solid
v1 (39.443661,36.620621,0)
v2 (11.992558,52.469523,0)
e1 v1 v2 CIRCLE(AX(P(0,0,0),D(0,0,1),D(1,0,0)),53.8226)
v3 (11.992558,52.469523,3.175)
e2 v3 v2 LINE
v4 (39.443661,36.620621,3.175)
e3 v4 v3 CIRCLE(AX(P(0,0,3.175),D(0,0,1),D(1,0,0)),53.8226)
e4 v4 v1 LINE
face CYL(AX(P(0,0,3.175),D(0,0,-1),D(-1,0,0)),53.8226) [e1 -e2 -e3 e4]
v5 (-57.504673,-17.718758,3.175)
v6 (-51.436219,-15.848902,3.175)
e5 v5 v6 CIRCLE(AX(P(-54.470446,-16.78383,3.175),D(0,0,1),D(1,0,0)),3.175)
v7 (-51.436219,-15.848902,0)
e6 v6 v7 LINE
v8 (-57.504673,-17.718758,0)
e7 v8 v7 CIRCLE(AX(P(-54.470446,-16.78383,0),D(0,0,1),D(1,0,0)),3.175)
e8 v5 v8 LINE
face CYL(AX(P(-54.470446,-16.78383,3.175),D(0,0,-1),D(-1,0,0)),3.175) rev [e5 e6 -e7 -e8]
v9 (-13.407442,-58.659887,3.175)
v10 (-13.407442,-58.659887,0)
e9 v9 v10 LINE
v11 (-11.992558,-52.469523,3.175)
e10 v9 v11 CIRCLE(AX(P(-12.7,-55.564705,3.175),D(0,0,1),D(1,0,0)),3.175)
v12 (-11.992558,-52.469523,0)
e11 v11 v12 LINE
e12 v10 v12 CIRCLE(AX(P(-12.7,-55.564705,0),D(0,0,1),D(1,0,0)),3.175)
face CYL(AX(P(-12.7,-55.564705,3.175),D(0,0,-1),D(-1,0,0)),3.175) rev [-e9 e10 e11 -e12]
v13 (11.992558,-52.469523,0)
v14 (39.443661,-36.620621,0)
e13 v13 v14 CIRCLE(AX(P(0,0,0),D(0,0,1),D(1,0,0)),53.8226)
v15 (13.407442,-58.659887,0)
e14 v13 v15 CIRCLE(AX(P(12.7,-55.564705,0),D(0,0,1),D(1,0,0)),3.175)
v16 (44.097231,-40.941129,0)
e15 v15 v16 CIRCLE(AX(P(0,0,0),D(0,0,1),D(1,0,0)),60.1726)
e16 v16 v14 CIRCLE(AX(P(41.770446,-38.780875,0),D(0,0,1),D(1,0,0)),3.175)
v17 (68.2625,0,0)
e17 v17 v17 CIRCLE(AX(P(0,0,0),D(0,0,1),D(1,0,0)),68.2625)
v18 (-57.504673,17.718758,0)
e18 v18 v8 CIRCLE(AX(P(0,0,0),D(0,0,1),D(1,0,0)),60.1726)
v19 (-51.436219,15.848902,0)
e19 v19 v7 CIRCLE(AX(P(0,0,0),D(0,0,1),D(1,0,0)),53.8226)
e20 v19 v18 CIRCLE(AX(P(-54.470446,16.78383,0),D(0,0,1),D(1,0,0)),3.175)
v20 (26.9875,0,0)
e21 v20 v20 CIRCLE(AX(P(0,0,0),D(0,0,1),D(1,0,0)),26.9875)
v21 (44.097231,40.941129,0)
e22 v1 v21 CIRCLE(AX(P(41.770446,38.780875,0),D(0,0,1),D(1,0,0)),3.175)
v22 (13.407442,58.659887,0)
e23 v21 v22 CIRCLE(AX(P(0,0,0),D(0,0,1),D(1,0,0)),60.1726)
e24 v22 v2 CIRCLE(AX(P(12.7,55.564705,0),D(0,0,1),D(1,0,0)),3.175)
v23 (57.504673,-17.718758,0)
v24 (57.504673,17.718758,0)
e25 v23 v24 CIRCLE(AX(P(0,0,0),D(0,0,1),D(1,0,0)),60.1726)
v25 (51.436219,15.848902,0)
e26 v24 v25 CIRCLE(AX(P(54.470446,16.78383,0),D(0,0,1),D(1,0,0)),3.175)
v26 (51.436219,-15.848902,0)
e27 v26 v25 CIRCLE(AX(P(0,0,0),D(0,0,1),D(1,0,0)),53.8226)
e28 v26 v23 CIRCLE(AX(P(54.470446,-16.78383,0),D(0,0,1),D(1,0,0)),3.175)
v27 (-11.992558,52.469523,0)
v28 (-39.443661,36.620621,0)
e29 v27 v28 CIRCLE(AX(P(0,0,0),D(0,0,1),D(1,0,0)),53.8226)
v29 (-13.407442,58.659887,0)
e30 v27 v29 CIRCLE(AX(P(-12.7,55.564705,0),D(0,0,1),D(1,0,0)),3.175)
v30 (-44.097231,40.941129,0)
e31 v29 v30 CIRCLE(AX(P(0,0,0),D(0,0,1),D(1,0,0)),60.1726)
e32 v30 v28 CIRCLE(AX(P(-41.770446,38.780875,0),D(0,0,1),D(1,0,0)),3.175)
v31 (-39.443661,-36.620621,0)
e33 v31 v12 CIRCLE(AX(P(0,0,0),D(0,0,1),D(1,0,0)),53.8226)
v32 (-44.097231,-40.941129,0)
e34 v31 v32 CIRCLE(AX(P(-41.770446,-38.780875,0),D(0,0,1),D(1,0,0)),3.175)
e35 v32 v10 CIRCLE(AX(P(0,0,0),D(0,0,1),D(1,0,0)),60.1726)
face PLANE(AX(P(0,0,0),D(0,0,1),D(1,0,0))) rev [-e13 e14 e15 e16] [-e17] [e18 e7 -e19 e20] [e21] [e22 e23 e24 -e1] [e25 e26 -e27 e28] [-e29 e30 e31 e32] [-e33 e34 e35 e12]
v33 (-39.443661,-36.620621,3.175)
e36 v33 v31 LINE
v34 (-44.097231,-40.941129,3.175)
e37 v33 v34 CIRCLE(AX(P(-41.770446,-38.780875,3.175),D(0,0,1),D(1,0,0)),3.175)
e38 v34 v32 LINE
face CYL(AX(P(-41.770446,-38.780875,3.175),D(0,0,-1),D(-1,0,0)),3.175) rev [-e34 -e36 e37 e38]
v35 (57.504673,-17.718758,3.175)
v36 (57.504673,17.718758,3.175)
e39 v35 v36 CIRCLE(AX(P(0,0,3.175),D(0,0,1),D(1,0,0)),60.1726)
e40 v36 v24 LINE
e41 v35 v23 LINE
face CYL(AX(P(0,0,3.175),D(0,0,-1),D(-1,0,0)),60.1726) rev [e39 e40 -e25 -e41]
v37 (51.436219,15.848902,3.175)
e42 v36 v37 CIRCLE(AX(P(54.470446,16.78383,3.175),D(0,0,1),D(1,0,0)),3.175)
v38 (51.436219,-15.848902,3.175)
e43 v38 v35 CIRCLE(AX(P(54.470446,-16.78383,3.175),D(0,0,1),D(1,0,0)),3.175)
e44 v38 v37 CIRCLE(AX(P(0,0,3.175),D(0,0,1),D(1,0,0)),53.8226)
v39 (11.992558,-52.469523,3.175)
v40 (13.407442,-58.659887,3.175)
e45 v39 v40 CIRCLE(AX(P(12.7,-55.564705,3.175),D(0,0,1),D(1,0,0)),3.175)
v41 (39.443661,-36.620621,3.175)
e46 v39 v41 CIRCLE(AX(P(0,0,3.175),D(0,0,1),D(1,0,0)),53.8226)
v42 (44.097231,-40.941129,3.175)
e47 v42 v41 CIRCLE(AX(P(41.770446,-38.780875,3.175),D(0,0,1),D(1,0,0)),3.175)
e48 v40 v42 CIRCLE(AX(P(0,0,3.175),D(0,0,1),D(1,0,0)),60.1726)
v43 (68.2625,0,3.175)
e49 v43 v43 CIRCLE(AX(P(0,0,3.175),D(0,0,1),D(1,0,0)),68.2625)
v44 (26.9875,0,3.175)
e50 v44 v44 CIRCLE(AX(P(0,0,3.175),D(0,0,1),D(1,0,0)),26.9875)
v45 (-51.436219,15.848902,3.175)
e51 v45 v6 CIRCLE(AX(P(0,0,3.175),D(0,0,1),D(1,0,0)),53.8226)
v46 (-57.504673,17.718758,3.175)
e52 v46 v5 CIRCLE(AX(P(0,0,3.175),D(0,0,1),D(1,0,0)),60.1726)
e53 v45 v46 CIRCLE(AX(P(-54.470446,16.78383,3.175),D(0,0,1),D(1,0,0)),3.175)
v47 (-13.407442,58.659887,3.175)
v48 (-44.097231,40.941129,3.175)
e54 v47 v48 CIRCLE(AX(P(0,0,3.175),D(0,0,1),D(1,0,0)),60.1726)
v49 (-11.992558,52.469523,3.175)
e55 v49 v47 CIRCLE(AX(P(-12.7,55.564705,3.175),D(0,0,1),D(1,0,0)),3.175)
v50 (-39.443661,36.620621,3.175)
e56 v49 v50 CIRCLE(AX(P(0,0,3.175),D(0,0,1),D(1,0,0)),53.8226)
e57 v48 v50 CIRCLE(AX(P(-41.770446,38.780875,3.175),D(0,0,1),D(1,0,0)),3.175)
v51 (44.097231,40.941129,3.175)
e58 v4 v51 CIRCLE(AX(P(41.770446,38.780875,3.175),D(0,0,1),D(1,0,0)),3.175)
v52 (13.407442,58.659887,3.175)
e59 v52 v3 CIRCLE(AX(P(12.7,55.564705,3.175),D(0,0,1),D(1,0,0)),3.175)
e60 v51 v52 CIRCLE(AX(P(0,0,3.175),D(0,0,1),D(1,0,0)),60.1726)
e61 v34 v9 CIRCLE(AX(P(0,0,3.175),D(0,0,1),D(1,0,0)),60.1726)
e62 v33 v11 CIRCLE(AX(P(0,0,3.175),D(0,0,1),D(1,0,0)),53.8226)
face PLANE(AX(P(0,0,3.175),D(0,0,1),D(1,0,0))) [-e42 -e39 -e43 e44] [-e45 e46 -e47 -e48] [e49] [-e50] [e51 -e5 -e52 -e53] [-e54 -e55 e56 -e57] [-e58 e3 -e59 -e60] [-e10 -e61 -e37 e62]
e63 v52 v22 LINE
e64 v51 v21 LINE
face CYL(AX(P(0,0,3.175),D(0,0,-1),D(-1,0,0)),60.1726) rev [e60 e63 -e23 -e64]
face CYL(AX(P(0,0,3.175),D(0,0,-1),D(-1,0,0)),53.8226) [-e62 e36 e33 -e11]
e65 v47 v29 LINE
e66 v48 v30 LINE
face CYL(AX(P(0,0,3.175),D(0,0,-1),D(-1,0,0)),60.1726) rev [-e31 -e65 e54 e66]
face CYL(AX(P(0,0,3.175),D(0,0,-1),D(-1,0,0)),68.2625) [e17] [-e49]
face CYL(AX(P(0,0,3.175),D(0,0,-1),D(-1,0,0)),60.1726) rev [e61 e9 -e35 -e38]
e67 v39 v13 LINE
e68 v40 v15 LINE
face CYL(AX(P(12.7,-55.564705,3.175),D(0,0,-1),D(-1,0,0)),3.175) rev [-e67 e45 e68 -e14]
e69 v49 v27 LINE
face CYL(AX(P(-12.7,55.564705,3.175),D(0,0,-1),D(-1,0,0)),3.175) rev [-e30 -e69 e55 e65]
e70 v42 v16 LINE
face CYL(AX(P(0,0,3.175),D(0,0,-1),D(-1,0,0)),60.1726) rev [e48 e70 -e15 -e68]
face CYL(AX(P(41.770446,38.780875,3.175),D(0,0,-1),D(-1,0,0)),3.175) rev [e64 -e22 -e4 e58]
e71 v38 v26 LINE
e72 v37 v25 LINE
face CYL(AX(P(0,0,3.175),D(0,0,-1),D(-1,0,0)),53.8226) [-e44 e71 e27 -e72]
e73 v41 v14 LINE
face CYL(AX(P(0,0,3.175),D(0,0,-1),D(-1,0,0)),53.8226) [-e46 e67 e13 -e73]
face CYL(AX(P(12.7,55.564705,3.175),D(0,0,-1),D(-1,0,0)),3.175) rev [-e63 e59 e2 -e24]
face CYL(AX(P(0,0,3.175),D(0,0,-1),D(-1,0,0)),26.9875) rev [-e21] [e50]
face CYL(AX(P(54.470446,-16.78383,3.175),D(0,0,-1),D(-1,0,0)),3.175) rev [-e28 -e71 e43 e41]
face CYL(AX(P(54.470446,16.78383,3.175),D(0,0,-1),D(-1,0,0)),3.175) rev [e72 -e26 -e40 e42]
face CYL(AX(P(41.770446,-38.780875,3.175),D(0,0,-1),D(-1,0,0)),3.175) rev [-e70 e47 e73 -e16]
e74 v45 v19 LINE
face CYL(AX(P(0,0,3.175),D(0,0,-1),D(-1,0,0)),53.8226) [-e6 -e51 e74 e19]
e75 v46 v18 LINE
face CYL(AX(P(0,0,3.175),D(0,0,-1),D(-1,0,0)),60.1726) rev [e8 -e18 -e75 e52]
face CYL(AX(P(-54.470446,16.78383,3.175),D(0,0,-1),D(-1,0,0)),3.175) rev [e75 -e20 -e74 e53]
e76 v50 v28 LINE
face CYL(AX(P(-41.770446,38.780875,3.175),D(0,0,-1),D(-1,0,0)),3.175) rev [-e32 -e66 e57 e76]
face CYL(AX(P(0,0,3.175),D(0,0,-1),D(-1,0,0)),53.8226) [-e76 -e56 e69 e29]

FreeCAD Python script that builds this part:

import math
import FreeCAD as App
import Part
import Sketcher
Q = App.Units.Quantity

doc = App.newDocument("Part")
body = doc.addObject("PartDesign::Body", "Body")

sketch1 = doc.addObject("Sketcher::SketchObject", "Sketch")
body.addObject(sketch1)
sketch1.AttachmentSupport = (doc.XY_Plane, [""])
sketch1.MapMode = "FlatFace"
sketch1.addGeometry([
    Part.Circle(App.Vector(0, 0, 0), App.Vector(0, 0, 1), 68.3),
    Part.ArcOfCircle(Part.Circle(App.Vector(-41.8, -38.8, 0), App.Vector(0, 0, 1), 3.2), math.radians(43), math.radians(223)),
    Part.ArcOfCircle(Part.Circle(App.Vector(0, 0, 0), App.Vector(0, 0, 1), 53.8), math.radians(-137), math.radians(-103)),
    Part.ArcOfCircle(Part.Circle(App.Vector(-12.7, -55.6, 0), App.Vector(0, 0, 1), 3.2), math.radians(-103), math.radians(77)),
    Part.ArcOfCircle(Part.Circle(App.Vector(0, 0, 0), App.Vector(0, 0, 1), 60.2), math.radians(-137), math.radians(-103)),
    Part.ArcOfCircle(Part.Circle(App.Vector(12.7, -55.6, 0), App.Vector(0, 0, 1), 3.2), math.radians(103), math.radians(283)),
    Part.ArcOfCircle(Part.Circle(App.Vector(0, 0, 0), App.Vector(0, 0, 1), 53.8), math.radians(-77), math.radians(-43)),
    Part.ArcOfCircle(Part.Circle(App.Vector(41.8, -38.8, 0), App.Vector(0, 0, 1), 3.2), math.radians(-43), math.radians(137)),
    Part.ArcOfCircle(Part.Circle(App.Vector(0, 0, 0), App.Vector(0, 0, 1), 60.2), math.radians(-77), math.radians(-43)),
    Part.ArcOfCircle(Part.Circle(App.Vector(-54.5, 16.8, 0), App.Vector(0, 0, 1), 3.2), math.radians(-17), math.radians(163)),
    Part.ArcOfCircle(Part.Circle(App.Vector(0, 0, 0), App.Vector(0, 0, 1), 53.8), math.radians(163), math.radians(197)),
    Part.ArcOfCircle(Part.Circle(App.Vector(-54.5, -16.8, 0), App.Vector(0, 0, 1), 3.2), math.radians(-163), math.radians(17)),
    Part.ArcOfCircle(Part.Circle(App.Vector(0, 0, 0), App.Vector(0, 0, 1), 60.2), math.radians(163), math.radians(197)),
    Part.ArcOfCircle(Part.Circle(App.Vector(0, 0, 0), App.Vector(0, 0, 1), 60.2), math.radians(103), math.radians(137)),
    Part.ArcOfCircle(Part.Circle(App.Vector(-12.7, 55.6, 0), App.Vector(0, 0, 1), 3.2), math.radians(-77), math.radians(103)),
    Part.ArcOfCircle(Part.Circle(App.Vector(0, 0, 0), App.Vector(0, 0, 1), 53.8), math.radians(103), math.radians(137)),
    Part.ArcOfCircle(Part.Circle(App.Vector(-41.8, 38.8, 0), App.Vector(0, 0, 1), 3.2), math.radians(137), math.radians(317)),
    Part.Circle(App.Vector(0, 0, 0), App.Vector(0, 0, 1), 27),
    Part.ArcOfCircle(Part.Circle(App.Vector(54.5, -16.8, 0), App.Vector(0, 0, 1), 3.2), math.radians(163), math.radians(343)),
    Part.ArcOfCircle(Part.Circle(App.Vector(0, 0, 0), App.Vector(0, 0, 1), 53.8), math.radians(-17), math.radians(17)),
    Part.ArcOfCircle(Part.Circle(App.Vector(54.5, 16.8, 0), App.Vector(0, 0, 1), 3.2), math.radians(17), math.radians(197)),
    Part.ArcOfCircle(Part.Circle(App.Vector(0, 0, 0), App.Vector(0, 0, 1), 60.2), math.radians(-17), math.radians(17)),
    Part.ArcOfCircle(Part.Circle(App.Vector(41.8, 38.8, 0), App.Vector(0, 0, 1), 3.2), math.radians(-137), math.radians(43)),
    Part.ArcOfCircle(Part.Circle(App.Vector(0, 0, 0), App.Vector(0, 0, 1), 53.8), math.radians(43), math.radians(77)),
    Part.ArcOfCircle(Part.Circle(App.Vector(12.7, 55.6, 0), App.Vector(0, 0, 1), 3.2), math.radians(77), math.radians(257)),
    Part.ArcOfCircle(Part.Circle(App.Vector(0, 0, 0), App.Vector(0, 0, 1), 60.2), math.radians(43), math.radians(77)),
], False)
sketch1.addConstraint([
    Sketcher.Constraint("Tangent", 1, 1, 2, 1),
    Sketcher.Constraint("Tangent", 2, 2, 3, 2),
    Sketcher.Constraint("Tangent", 3, 1, 4, 2),
    Sketcher.Constraint("Tangent", 4, 1, 1, 2),
    Sketcher.Constraint("Tangent", 5, 1, 6, 1),
    Sketcher.Constraint("Tangent", 6, 2, 7, 2),
    Sketcher.Constraint("Tangent", 7, 1, 8, 2),
    Sketcher.Constraint("Tangent", 8, 1, 5, 2),
    Sketcher.Constraint("Tangent", 9, 1, 10, 1),
    Sketcher.Constraint("Tangent", 10, 2, 11, 2),
    Sketcher.Constraint("Tangent", 11, 1, 12, 2),
    Sketcher.Constraint("Tangent", 12, 1, 9, 2),
    Sketcher.Constraint("Tangent", 13, 1, 14, 2),
    Sketcher.Constraint("Tangent", 14, 1, 15, 1),
    Sketcher.Constraint("Tangent", 15, 2, 16, 2),
    Sketcher.Constraint("Tangent", 16, 1, 13, 2),
    Sketcher.Constraint("Tangent", 18, 1, 19, 1),
    Sketcher.Constraint("Tangent", 19, 2, 20, 2),
    Sketcher.Constraint("Tangent", 20, 1, 21, 2),
    Sketcher.Constraint("Tangent", 21, 1, 18, 2),
    Sketcher.Constraint("Tangent", 22, 1, 23, 1),
    Sketcher.Constraint("Tangent", 23, 2, 24, 2),
    Sketcher.Constraint("Tangent", 24, 1, 25, 2),
    Sketcher.Constraint("Tangent", 25, 1, 22, 2),
    Sketcher.Constraint("Coincident", 0, 3, -1, 1),
    Sketcher.Constraint("Coincident", 2, 3, -1, 1),
    Sketcher.Constraint("Coincident", 4, 3, -1, 1),
    Sketcher.Constraint("Coincident", 6, 3, -1, 1),
    Sketcher.Constraint("Coincident", 8, 3, -1, 1),
    Sketcher.Constraint("Coincident", 10, 3, -1, 1),
    Sketcher.Constraint("Coincident", 12, 3, -1, 1),
    Sketcher.Constraint("Coincident", 13, 3, -1, 1),
    Sketcher.Constraint("Coincident", 15, 3, -1, 1),
    Sketcher.Constraint("Coincident", 17, 3, -1, 1),
    Sketcher.Constraint("Coincident", 19, 3, -1, 1),
    Sketcher.Constraint("Coincident", 21, 3, -1, 1),
    Sketcher.Constraint("Coincident", 23, 3, -1, 1),
    Sketcher.Constraint("Coincident", 25, 3, -1, 1),
    Sketcher.Constraint("Equal", 3, 5),
    Sketcher.Constraint("Equal", 2, 6),
    Sketcher.Constraint("Equal", 7, 9),
    Sketcher.Constraint("Equal", 6, 10),
    Sketcher.Constraint("Equal", 12, 13),
    Sketcher.Constraint("Equal", 11, 14),
    Sketcher.Constraint("Equal", 16, 18),
    Sketcher.Constraint("Equal", 15, 19),
    Sketcher.Constraint("Equal", 20, 22),
    Sketcher.Constraint("Equal", 19, 23),
    Sketcher.Constraint("Horizontal", 3, 3, 5, 3),
    Sketcher.Constraint("Horizontal", 1, 3, 7, 3),
    Sketcher.Constraint("Horizontal", 11, 3, 18, 3),
    Sketcher.Constraint("Horizontal", 9, 3, 20, 3),
    Sketcher.Constraint("Horizontal", 16, 3, 22, 3),
    Sketcher.Constraint("Horizontal", 14, 3, 24, 3),
    Sketcher.Constraint("Vertical", 9, 3, 11, 3),
    Sketcher.Constraint("Vertical", 3, 3, 14, 3),
    Sketcher.Constraint("Vertical", 1, 3, 16, 3),
    Sketcher.Constraint("Diameter", 0, Q("5.375 in")),
    Sketcher.Constraint("Diameter", 17, Q("2.125 in")),
    Sketcher.Constraint("Radius", 1, Q("0.125 in")),
    Sketcher.Constraint("Radius", 2, Q("2.119 in")),
    Sketcher.Constraint("DistanceX", 3, 3, 5, 3, Q("1 in")),
    Sketcher.Constraint("DistanceX", 9, 3, 1, 3, Q("0.5 in")),
    Sketcher.Constraint("DistanceX", 1, 1, -1, 1, Q("1.5529 in")),
])
pad1 = doc.addObject("PartDesign::Pad", "Pad")
body.addObject(pad1)
pad1.Profile = sketch1
pad1.Length = Q("0.125 in")

doc.recompute()
